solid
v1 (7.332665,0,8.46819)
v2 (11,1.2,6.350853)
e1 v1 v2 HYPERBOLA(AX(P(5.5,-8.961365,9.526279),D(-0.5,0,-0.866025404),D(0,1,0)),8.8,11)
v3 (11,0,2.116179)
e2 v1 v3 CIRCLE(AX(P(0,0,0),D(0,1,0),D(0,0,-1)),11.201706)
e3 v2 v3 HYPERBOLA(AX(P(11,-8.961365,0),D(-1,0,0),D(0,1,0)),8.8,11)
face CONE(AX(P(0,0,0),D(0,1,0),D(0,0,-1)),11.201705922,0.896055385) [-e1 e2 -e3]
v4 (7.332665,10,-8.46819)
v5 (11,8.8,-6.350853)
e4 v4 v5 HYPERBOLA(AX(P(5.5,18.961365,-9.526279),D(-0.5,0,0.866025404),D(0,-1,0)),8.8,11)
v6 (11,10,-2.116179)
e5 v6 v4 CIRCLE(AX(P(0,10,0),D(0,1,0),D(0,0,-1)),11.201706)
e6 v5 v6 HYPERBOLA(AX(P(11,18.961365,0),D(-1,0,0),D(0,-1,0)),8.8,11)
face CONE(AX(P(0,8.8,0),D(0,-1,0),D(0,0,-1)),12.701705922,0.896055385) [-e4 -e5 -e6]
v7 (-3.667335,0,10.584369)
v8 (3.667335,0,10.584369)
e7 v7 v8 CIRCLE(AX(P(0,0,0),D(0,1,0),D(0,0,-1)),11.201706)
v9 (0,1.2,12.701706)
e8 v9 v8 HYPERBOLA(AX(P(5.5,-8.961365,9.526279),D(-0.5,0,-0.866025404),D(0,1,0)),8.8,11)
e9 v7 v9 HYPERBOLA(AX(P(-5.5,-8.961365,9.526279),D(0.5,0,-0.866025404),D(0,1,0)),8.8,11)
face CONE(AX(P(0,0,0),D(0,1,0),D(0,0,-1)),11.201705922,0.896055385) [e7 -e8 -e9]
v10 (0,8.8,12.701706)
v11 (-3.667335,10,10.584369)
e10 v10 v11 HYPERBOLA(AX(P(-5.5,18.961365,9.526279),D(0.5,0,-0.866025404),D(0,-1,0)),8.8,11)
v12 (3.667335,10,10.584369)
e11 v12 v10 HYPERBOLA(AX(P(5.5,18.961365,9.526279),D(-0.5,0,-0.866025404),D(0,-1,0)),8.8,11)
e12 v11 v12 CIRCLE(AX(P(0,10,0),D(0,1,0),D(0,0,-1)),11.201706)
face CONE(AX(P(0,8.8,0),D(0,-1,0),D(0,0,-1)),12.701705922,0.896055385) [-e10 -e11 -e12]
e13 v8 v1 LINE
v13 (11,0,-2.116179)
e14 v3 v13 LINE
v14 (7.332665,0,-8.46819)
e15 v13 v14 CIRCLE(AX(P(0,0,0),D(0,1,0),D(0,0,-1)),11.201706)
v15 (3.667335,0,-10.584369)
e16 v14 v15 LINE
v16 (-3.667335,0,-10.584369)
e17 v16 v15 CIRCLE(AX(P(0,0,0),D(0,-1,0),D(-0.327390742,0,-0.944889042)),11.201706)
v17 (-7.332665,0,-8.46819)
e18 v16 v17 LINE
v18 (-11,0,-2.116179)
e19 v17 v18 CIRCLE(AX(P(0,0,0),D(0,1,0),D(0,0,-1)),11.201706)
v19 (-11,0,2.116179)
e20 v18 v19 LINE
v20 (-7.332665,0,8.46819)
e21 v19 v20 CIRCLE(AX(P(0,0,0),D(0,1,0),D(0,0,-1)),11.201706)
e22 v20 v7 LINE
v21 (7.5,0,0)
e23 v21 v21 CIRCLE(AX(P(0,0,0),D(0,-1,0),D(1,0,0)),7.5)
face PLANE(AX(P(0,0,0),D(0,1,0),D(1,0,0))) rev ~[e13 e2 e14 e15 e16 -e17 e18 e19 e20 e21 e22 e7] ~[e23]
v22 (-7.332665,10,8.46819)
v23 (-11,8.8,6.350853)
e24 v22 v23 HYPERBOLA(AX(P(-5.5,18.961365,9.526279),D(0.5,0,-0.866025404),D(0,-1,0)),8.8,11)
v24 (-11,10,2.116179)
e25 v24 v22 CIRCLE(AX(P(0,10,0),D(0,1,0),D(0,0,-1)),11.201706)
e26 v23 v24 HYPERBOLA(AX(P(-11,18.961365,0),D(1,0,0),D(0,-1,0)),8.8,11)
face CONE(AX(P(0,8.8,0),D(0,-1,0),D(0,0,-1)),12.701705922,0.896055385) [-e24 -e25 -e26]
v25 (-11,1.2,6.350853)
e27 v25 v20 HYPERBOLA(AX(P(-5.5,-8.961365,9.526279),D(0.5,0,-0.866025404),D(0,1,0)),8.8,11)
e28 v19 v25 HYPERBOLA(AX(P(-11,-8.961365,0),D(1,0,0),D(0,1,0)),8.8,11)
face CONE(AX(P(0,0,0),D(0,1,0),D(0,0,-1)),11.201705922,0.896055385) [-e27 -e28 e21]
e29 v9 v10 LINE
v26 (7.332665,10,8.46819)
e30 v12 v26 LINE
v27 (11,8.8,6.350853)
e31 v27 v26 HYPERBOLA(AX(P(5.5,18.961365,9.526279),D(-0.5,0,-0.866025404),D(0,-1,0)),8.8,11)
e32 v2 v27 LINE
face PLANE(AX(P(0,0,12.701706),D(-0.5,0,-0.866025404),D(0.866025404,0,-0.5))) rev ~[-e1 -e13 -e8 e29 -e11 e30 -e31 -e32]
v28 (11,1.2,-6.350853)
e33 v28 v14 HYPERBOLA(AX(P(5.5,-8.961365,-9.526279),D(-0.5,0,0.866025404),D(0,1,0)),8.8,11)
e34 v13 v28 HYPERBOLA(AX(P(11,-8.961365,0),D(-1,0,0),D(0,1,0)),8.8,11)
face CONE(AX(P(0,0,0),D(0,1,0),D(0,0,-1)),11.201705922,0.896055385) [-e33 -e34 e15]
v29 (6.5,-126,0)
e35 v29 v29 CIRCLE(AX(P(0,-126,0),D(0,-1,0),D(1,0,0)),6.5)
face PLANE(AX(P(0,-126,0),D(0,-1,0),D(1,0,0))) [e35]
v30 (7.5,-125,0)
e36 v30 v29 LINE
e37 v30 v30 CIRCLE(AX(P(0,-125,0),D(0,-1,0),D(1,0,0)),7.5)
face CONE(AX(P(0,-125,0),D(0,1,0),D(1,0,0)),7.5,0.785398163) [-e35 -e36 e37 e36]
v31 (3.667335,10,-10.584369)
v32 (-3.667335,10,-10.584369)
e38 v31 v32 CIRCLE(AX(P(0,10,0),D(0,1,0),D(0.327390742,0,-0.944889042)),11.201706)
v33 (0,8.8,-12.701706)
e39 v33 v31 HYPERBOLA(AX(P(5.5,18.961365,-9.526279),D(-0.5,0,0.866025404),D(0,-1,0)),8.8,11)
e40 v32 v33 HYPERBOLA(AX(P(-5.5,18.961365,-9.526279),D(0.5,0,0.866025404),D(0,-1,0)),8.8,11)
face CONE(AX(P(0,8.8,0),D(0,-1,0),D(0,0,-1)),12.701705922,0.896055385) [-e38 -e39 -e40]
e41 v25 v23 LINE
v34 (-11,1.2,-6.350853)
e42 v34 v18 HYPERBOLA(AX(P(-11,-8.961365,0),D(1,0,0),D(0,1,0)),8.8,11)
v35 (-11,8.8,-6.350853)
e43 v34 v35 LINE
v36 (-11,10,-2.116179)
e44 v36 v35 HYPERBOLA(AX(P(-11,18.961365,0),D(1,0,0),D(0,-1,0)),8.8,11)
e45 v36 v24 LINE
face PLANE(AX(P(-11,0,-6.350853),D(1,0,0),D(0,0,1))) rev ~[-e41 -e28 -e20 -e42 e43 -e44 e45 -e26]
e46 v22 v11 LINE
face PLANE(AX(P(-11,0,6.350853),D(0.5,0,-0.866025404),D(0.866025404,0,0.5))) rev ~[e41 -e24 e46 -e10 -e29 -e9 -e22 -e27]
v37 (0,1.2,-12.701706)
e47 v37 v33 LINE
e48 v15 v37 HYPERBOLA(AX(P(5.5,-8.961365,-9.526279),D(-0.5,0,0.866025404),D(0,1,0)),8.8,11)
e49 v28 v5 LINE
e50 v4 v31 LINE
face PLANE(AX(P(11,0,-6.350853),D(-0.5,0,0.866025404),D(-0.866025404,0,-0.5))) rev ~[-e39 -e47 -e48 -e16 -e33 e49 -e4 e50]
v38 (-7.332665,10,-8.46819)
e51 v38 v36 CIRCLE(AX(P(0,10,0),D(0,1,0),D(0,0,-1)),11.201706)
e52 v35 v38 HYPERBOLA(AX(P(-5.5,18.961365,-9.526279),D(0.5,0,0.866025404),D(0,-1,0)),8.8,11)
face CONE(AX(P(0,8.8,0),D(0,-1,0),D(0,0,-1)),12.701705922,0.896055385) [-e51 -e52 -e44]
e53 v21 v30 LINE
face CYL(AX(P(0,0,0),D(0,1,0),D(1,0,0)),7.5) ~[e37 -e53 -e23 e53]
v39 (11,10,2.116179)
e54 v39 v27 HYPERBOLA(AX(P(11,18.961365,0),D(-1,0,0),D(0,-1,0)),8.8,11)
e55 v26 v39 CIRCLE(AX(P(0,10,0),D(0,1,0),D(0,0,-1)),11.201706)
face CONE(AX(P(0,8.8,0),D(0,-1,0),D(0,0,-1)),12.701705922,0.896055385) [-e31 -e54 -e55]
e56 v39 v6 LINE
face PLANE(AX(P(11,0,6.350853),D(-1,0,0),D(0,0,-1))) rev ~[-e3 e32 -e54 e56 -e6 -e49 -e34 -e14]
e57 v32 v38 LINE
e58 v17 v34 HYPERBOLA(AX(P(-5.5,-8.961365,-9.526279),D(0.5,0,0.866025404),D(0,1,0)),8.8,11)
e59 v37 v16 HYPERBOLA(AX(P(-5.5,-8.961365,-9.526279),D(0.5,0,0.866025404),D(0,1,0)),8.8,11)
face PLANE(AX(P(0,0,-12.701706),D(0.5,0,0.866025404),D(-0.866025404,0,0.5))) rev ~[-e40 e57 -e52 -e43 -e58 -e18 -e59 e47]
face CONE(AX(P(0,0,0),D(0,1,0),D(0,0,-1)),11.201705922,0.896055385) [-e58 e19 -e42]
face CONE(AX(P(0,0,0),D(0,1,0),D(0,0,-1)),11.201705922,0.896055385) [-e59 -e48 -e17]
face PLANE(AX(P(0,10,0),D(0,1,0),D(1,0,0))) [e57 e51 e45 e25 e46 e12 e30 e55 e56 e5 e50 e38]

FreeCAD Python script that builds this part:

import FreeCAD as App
import Part
import Sketcher
Q = App.Units.Quantity


def edges_at(feature, points):
    """Names of the edges that pass closest to the given points."""
    edges = feature.Shape.Edges
    near = lambda p: min(range(len(edges)), key=lambda i: edges[i].distToShape(Part.Vertex(*p))[0])
    return sorted({f"Edge{near(p) + 1}" for p in points})

doc = App.newDocument("Part")
body = doc.addObject("PartDesign::Body", "Body")

sketch1 = doc.addObject("Sketcher::SketchObject", "Sketch")
body.addObject(sketch1)
sketch1.AttachmentSupport = (doc.XZ_Plane, [""])
sketch1.MapMode = "FlatFace"
sketch1.addGeometry(Part.LineSegment(App.Vector(-11, -6.350853, 0), App.Vector(-11, 6.350853, 0)), False)
sketch1.addGeometry(Part.LineSegment(App.Vector(-11, 6.350853, 0), App.Vector(0, 12.701706, 0)), False)
sketch1.addGeometry(Part.LineSegment(App.Vector(0, 12.701706, 0), App.Vector(11, 6.350853, 0)), False)
sketch1.addGeometry(Part.LineSegment(App.Vector(11, 6.350853, 0), App.Vector(11, -6.350853, 0)), False)
sketch1.addGeometry(Part.LineSegment(App.Vector(11, -6.350853, 0), App.Vector(0, -12.701706, 0)), False)
sketch1.addGeometry(Part.LineSegment(App.Vector(0, -12.701706, 0), App.Vector(-11, -6.350853, 0)), False)
sketch1.addConstraint(Sketcher.Constraint("Coincident", 0, 2, 1, 1))
sketch1.addConstraint(Sketcher.Constraint("Coincident", 1, 2, 2, 1))
sketch1.addConstraint(Sketcher.Constraint("Coincident", 2, 2, 3, 1))
sketch1.addConstraint(Sketcher.Constraint("Coincident", 3, 2, 4, 1))
sketch1.addConstraint(Sketcher.Constraint("Coincident", 4, 2, 5, 1))
sketch1.addConstraint(Sketcher.Constraint("Coincident", 5, 2, 0, 1))
sketch1.addConstraint(Sketcher.Constraint("Vertical", 0))
sketch1.addConstraint(Sketcher.Constraint("Vertical", 3))
sketch1.addConstraint(Sketcher.Constraint("Symmetric", 0, 2, 3, 2, -1, 1))
sketch1.addConstraint(Sketcher.Constraint("Symmetric", 1, 2, 4, 2, -1, 1))
sketch1.addConstraint(Sketcher.Constraint("PointOnObject", 1, 2, -2))
sketch1.addConstraint(Sketcher.Constraint("Parallel", 2, 5))
sketch1.addConstraint(Sketcher.Constraint("Horizontal", 0, 2, 2, 2))
sketch1.addConstraint(Sketcher.Constraint("Angle", 1, Q("30 deg")))
sketch1.addConstraint(Sketcher.Constraint("DistanceX", 0, 2, -1, 1, 11.0))
sketch1.addConstraint(Sketcher.Constraint("DistanceY", 0, 1, 0, 2, 12.701706))
pad1 = doc.addObject("PartDesign::Pad", "Pad")
body.addObject(pad1)
pad1.Profile = sketch1
pad1.Length = 10
pad1.Reversed = True

sketch2 = doc.addObject("Sketcher::SketchObject", "Sketch001")
body.addObject(sketch2)
sketch2.AttachmentSupport = (doc.XZ_Plane, [""])
sketch2.MapMode = "FlatFace"
sketch2.addGeometry(Part.Circle(App.Vector(0, 0, 0), App.Vector(0, 0, 1), 7.5), False)
sketch2.addConstraint(Sketcher.Constraint("Coincident", 0, 3, -1, 1))
sketch2.addConstraint(Sketcher.Constraint("Diameter", 0, 15.0))
pad2 = doc.addObject("PartDesign::Pad", "Pad001")
body.addObject(pad2)
pad2.Profile = sketch2
pad2.Length = 126
doc.recompute()

chamfer = doc.addObject("PartDesign::Chamfer", "Chamfer")
body.addObject(chamfer)
chamfer.Base = (pad2, edges_at(pad2, [(-7.5, -126, 0)]))
chamfer.Size = 1

sketch3 = doc.addObject("Sketcher::SketchObject", "Sketch002")
body.addObject(sketch3)
sketch3.AttachmentSupport = (doc.YZ_Plane, [""])
sketch3.MapMode = "FlatFace"
sketch3.addGeometry(Part.LineSegment(App.Vector(8.8, -12.701706, 0), App.Vector(10, -12.701706, 0)), False)
sketch3.addGeometry(Part.LineSegment(App.Vector(10, -12.701706, 0), App.Vector(10, -11.201706, 0)), False)
sketch3.addGeometry(Part.LineSegment(App.Vector(10, -11.201706, 0), App.Vector(8.8, -12.701706, 0)), False)
sketch3.addGeometry(Part.LineSegment(App.Vector(0, -12.701706, 0), App.Vector(1.2, -12.701706, 0)), False)
sketch3.addGeometry(Part.LineSegment(App.Vector(1.2, -12.701706, 0), App.Vector(0, -11.201706, 0)), False)
sketch3.addGeometry(Part.LineSegment(App.Vector(0, -11.201706, 0), App.Vector(0, -12.701706, 0)), False)
sketch3.addConstraint(Sketcher.Constraint("Coincident", 0, 2, 1, 1))
sketch3.addConstraint(Sketcher.Constraint("Coincident", 1, 2, 2, 1))
sketch3.addConstraint(Sketcher.Constraint("Coincident", 2, 2, 0, 1))
sketch3.addConstraint(Sketcher.Constraint("Coincident", 3, 2, 4, 1))
sketch3.addConstraint(Sketcher.Constraint("Coincident", 4, 2, 5, 1))
sketch3.addConstraint(Sketcher.Constraint("Coincident", 5, 2, 3, 1))
sketch3.addConstraint(Sketcher.Constraint("Horizontal", 0))
sketch3.addConstraint(Sketcher.Constraint("Vertical", 1))
sketch3.addConstraint(Sketcher.Constraint("Horizontal", 3))
sketch3.addConstraint(Sketcher.Constraint("Vertical", 5))
sketch3.addConstraint(Sketcher.Constraint("PointOnObject", 4, 2, -2))
sketch3.addConstraint(Sketcher.Constraint("Horizontal", 2, 2, 3, 2))
sketch3.addConstraint(Sketcher.Constraint("Horizontal", 1, 2, 4, 2))
sketch3.addConstraint(Sketcher.Constraint("Equal", 0, 3))
sketch3.addConstraint(Sketcher.Constraint("DistanceX", 0, 1, 0, 2, 1.2))
sketch3.addConstraint(Sketcher.Constraint("DistanceY", 1, 1, 1, 2, 1.5))
sketch3.addConstraint(Sketcher.Constraint("DistanceX", -1, 1, 0, 2, 10.0))
sketch3.addConstraint(Sketcher.Constraint("DistanceY", 0, 2, -1, 1, 12.701706))
groove = doc.addObject("PartDesign::Groove", "Groove")
body.addObject(groove)
groove.Profile = sketch3
groove.ReferenceAxis = (sketch3, ["H_Axis"])
groove.Angle = 360

doc.recompute()
